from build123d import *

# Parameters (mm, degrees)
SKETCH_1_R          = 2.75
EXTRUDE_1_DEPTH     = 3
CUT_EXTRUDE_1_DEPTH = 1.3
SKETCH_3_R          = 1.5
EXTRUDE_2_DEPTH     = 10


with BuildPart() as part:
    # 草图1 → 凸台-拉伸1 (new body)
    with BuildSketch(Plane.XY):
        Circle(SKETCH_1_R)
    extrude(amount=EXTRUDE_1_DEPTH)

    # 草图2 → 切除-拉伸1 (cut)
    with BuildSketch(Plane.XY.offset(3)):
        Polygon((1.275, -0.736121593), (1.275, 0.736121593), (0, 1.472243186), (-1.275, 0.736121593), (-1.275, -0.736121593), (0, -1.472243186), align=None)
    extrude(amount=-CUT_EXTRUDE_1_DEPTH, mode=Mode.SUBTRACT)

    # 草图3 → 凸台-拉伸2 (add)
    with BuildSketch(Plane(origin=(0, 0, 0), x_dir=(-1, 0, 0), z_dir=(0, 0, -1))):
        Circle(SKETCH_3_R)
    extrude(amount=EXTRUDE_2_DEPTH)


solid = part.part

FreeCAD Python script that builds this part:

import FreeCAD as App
import Part
import Sketcher

V = App.Vector
Q = App.Units.Quantity


def add_polygon(sketch, points):
    """Adds a closed chain of lines whose ends are joined by coincident constraints."""
    first, n = sketch.GeometryCount, len(points)
    for a, b in zip(points, points[1:] + points[:1]):
        sketch.addGeometry(Part.LineSegment(App.Vector(*a, 0), App.Vector(*b, 0)), False)
    for i in range(n):
        sketch.addConstraint(Sketcher.Constraint("Coincident", first + i, 2, first + (i + 1) % n, 1))

doc = App.newDocument("Part")
body = doc.addObject("PartDesign::Body", "Body")

# Sketch on XY plane
sketch1 = doc.addObject("Sketcher::SketchObject", "Sketch")
body.addObject(sketch1)
sketch1.AttachmentSupport = (doc.XY_Plane, [""])
sketch1.MapMode = "FlatFace"
sketch1.addGeometry(Part.Circle(V(0, 0, 0), V(0, 0, 1), 2.8), False)
sketch1.addConstraint([
    Sketcher.Constraint("Coincident", 0, 3, -1, 1),
    Sketcher.Constraint("Diameter", 0, 5.5),
])
pad1 = doc.addObject("PartDesign::Pad", "Pad")
body.addObject(pad1)
pad1.Profile = sketch1
pad1.Length = 3

# Sketch on XY plane
sketch2 = doc.addObject("Sketcher::SketchObject", "Sketch001")
body.addObject(sketch2)
sketch2.AttachmentSupport = (doc.XY_Plane, [""])
sketch2.MapMode = "FlatFace"
sketch2.AttachmentOffset = App.Placement(V(0, 0, 3), App.Rotation())
add_polygon(sketch2, [(1.3, -0.7), (1.3, 0.7), (0, 1.5), (-1.3, 0.7), (-1.3, -0.7), (0, -1.5)])  # lines 0-5
sketch2.addConstraint([
    Sketcher.Constraint("Vertical", 0),
    Sketcher.Constraint("Vertical", 3),
    Sketcher.Constraint("Symmetric", 0, 2, 3, 2, -1, 1),
    Sketcher.Constraint("Symmetric", 1, 2, 4, 2, -1, 1),
    Sketcher.Constraint("PointOnObject", 1, 2, -2),
    Sketcher.Constraint("Parallel", 2, 5),
    Sketcher.Constraint("Horizontal", 0, 2, 2, 2),
    Sketcher.Constraint("Angle", 1, Q("150 deg")),
    Sketcher.Constraint("DistanceX", 2, 2, 0, 2, 2.55),
    Sketcher.Constraint("DistanceY", 0, 1, 0, 2, 1.472243),
])
pocket1 = doc.addObject("PartDesign::Pocket", "Pocket")
body.addObject(pocket1)
pocket1.Profile = sketch2
pocket1.Length = 1.3

# Sketch on XY plane
sketch3 = doc.addObject("Sketcher::SketchObject", "Sketch002")
body.addObject(sketch3)
sketch3.AttachmentSupport = (doc.XY_Plane, [""])
sketch3.MapMode = "FlatFace"
sketch3.addGeometry(Part.Circle(V(0, 0, 0), V(0, 0, 1), 1.5), False)
sketch3.addConstraint([
    Sketcher.Constraint("Coincident", 0, 3, -1, 1),
    Sketcher.Constraint("Diameter", 0, 3.0),
])
pad2 = doc.addObject("PartDesign::Pad", "Pad001")
body.addObject(pad2)
pad2.Profile = sketch3
pad2.Length = 10
pad2.Reversed = True

doc.recompute()
